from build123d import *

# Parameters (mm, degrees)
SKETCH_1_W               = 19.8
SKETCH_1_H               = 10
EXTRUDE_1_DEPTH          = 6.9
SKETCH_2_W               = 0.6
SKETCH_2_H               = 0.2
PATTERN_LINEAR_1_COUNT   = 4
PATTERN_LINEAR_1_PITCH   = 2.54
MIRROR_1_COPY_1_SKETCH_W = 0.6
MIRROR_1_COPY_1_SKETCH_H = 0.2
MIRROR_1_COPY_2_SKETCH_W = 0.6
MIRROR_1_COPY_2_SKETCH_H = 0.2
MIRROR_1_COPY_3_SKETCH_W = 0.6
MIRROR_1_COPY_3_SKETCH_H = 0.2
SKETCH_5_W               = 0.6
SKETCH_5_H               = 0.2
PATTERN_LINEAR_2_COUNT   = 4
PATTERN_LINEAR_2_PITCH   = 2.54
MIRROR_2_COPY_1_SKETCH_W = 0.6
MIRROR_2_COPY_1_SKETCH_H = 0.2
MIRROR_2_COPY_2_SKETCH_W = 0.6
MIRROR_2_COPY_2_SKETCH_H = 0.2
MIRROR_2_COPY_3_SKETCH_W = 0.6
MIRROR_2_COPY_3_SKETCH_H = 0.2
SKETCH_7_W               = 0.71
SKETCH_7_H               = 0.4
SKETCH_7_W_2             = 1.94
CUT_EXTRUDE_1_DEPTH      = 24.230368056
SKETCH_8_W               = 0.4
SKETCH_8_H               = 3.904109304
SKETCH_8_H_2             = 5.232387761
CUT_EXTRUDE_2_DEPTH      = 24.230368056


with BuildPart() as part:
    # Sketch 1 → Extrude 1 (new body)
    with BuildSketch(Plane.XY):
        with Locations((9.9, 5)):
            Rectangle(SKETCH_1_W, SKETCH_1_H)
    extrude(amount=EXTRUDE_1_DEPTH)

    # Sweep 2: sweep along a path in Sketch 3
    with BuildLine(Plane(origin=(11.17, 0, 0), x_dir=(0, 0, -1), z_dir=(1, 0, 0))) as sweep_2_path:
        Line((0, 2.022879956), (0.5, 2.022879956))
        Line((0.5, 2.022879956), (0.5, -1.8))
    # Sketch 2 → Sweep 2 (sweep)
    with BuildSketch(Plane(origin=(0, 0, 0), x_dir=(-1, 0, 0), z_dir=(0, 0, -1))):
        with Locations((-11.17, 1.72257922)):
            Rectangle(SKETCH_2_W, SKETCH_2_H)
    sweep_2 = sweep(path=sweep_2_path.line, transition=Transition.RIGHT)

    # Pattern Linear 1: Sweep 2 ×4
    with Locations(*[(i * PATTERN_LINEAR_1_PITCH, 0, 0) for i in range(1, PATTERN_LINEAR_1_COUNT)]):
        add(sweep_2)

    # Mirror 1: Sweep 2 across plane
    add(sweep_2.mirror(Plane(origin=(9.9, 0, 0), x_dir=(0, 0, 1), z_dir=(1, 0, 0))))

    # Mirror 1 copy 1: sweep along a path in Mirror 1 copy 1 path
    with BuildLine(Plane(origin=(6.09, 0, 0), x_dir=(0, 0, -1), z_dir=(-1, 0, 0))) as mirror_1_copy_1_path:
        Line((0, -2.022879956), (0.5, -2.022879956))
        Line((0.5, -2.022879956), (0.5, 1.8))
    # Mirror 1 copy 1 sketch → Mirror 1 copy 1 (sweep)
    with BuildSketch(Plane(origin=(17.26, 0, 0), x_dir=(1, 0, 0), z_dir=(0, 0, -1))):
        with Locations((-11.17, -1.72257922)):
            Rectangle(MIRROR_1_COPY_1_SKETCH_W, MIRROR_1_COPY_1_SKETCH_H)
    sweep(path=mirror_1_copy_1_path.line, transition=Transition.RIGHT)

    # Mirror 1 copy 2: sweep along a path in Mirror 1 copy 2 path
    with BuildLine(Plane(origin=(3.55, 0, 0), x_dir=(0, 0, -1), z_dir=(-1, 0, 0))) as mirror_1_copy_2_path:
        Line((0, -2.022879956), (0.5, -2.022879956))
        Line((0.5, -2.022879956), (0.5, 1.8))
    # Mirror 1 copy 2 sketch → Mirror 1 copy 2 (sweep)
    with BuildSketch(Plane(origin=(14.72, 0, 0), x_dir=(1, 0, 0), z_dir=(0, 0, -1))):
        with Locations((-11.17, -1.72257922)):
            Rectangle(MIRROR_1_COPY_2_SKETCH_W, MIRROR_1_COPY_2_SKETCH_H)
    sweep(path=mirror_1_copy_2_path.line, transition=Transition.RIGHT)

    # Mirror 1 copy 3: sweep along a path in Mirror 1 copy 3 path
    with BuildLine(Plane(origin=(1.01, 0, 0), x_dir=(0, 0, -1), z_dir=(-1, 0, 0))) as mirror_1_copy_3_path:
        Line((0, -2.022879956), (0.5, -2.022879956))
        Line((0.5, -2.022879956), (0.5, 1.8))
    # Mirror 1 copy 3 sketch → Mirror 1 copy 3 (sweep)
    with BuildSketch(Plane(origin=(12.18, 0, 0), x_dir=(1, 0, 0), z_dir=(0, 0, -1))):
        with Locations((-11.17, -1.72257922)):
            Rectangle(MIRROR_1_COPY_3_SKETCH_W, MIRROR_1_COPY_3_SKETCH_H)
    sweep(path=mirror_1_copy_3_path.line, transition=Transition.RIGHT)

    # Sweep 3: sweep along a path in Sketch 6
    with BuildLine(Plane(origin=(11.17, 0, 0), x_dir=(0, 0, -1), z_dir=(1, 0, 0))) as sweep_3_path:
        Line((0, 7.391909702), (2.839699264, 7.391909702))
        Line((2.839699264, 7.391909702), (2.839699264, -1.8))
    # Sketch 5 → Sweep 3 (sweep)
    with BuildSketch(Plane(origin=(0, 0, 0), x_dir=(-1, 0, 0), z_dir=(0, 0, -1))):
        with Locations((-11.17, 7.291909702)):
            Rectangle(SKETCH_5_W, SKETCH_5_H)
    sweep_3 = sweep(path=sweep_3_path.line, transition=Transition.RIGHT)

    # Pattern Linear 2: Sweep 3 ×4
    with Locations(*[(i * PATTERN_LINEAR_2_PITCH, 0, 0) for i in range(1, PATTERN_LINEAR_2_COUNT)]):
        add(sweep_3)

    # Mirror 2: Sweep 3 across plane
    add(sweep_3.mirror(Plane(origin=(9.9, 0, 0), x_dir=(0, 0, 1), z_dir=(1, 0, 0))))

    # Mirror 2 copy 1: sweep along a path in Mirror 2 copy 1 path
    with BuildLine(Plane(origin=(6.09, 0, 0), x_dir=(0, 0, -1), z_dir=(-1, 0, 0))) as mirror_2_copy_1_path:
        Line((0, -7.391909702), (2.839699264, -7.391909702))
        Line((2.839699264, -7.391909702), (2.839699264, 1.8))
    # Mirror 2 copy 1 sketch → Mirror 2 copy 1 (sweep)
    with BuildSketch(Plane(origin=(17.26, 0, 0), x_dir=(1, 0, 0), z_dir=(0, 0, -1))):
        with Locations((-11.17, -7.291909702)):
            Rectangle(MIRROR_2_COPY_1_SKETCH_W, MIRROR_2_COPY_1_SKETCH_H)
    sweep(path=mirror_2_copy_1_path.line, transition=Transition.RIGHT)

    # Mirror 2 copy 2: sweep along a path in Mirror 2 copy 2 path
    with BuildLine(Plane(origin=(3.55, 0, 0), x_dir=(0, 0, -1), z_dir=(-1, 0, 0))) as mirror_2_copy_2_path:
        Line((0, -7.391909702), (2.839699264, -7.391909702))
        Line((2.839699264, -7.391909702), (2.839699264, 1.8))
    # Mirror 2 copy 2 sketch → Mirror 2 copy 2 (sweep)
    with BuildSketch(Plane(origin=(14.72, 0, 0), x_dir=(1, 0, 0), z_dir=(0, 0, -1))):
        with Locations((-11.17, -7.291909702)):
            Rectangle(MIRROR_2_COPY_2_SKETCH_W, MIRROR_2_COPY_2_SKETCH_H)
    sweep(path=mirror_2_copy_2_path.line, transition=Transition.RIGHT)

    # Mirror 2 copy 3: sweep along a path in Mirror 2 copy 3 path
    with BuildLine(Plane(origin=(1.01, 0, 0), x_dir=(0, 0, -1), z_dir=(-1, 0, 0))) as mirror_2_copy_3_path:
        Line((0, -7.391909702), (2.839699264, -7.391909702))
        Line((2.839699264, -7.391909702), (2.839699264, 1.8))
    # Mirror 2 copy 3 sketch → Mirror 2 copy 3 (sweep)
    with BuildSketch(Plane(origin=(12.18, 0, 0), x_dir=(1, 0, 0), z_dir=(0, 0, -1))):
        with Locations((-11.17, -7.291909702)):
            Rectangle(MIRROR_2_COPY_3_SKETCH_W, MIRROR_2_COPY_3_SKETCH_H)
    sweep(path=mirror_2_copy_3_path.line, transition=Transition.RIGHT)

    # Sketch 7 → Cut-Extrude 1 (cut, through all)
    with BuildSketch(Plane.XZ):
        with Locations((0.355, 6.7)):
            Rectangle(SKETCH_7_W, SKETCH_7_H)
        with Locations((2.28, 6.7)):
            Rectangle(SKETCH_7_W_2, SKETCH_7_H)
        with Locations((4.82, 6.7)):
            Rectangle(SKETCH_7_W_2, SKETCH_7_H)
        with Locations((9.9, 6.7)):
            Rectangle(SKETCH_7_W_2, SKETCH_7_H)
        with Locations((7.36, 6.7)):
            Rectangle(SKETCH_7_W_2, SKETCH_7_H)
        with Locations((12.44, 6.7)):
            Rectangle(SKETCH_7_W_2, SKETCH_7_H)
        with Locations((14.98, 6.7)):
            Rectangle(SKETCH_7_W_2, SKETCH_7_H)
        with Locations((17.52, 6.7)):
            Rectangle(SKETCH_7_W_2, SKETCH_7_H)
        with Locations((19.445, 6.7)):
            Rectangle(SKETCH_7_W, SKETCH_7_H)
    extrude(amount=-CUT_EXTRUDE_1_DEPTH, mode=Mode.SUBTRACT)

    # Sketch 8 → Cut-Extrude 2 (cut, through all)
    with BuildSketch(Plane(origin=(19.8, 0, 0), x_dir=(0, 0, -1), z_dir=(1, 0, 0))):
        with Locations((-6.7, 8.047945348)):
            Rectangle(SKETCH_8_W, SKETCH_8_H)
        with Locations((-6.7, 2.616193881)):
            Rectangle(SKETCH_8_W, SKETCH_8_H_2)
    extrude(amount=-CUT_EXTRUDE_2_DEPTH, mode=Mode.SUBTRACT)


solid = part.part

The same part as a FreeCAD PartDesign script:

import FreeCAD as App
import Part
import Sketcher
Q = App.Units.Quantity

doc = App.newDocument("Part")
body = doc.addObject("PartDesign::Body", "Body")

# Sketch on XY plane
sketch1 = doc.addObject("Sketcher::SketchObject", "Sketch")
body.addObject(sketch1)
sketch1.AttachmentSupport = (doc.XY_Plane, [""])
sketch1.MapMode = "FlatFace"
sketch1.addGeometry([
    Part.LineSegment(App.Vector(0, 10, 0), App.Vector(0, 0, 0)),
    Part.LineSegment(App.Vector(0, 0, 0), App.Vector(20, 0, 0)),
    Part.LineSegment(App.Vector(20, 0, 0), App.Vector(20, 10, 0)),
    Part.LineSegment(App.Vector(20, 10, 0), App.Vector(0, 10, 0)),
], False)
sketch1.addConstraint([
    Sketcher.Constraint("Coincident", 0, 2, 1, 1),
    Sketcher.Constraint("Coincident", 1, 2, 2, 1),
    Sketcher.Constraint("Coincident", 2, 2, 3, 1),
    Sketcher.Constraint("Coincident", 3, 2, 0, 1),
    Sketcher.Constraint("Vertical", 0),
    Sketcher.Constraint("Horizontal", 1),
    Sketcher.Constraint("Vertical", 2),
    Sketcher.Constraint("Horizontal", 3),
    Sketcher.Constraint("Coincident", 0, 2, -1, 1),
    Sketcher.Constraint("DistanceY", 0, 2, 0, 1, Q("10 mm")),
    Sketcher.Constraint("DistanceX", 1, 1, 1, 2, Q("19.8 mm")),
])
pad1 = doc.addObject("PartDesign::Pad", "Pad")
body.addObject(pad1)
pad1.Profile = sketch1
pad1.Length = 6.9

# Sketch on XY plane
sketch2 = doc.addObject("Sketcher::SketchObject", "Sketch001")
body.addObject(sketch2)
sketch2.AttachmentSupport = (doc.XY_Plane, [""])
sketch2.MapMode = "FlatFace"
sketch2.addGeometry([
    Part.LineSegment(App.Vector(11.47, 1.82, 0), App.Vector(11.47, 1.62, 0)),
    Part.LineSegment(App.Vector(11.47, 1.62, 0), App.Vector(10.87, 1.62, 0)),
    Part.LineSegment(App.Vector(10.87, 1.62, 0), App.Vector(10.87, 1.82, 0)),
    Part.LineSegment(App.Vector(10.87, 1.82, 0), App.Vector(11.47, 1.82, 0)),
], False)
sketch2.addConstraint([
    Sketcher.Constraint("Coincident", 0, 2, 1, 1),
    Sketcher.Constraint("Coincident", 1, 2, 2, 1),
    Sketcher.Constraint("Coincident", 2, 2, 3, 1),
    Sketcher.Constraint("Coincident", 3, 2, 0, 1),
    Sketcher.Constraint("Vertical", 0),
    Sketcher.Constraint("Horizontal", 1),
    Sketcher.Constraint("Vertical", 2),
    Sketcher.Constraint("Horizontal", 3),
    Sketcher.Constraint("DistanceX", 1, 2, 1, 1, Q("0.6 mm")),
    Sketcher.Constraint("DistanceY", 0, 2, 0, 1, Q("0.2 mm")),
    Sketcher.Constraint("DistanceX", -1, 1, 0, 2, Q("11.47 mm")),
    Sketcher.Constraint("DistanceY", -1, 1, 0, 2, Q("1.622579 mm")),
])

# Sketch on YZ plane
sketch3 = doc.addObject("Sketcher::SketchObject", "Sketch002")
body.addObject(sketch3)
sketch3.AttachmentSupport = (doc.YZ_Plane, [""])
sketch3.MapMode = "FlatFace"
sketch3.AttachmentOffset = App.Placement(App.Vector(0, 0, 11.17), App.Rotation())
sketch3.addGeometry([
    Part.LineSegment(App.Vector(2, 0, 0), App.Vector(2, -0.5, 0)),
    Part.LineSegment(App.Vector(2, -0.5, 0), App.Vector(-1.8, -0.5, 0)),
], False)
sketch3.addConstraint([
    Sketcher.Constraint("Coincident", 0, 2, 1, 1),
    Sketcher.Constraint("Vertical", 0),
    Sketcher.Constraint("Horizontal", 1),
    Sketcher.Constraint("PointOnObject", 0, 1, -1),
    Sketcher.Constraint("DistanceY", 0, 2, 0, 1, Q("0.5 mm")),
    Sketcher.Constraint("DistanceX", 1, 2, -1, 1, Q("1.8 mm")),
    Sketcher.Constraint("DistanceX", 1, 2, 1, 1, Q("3.82288 mm")),
])
doc.recompute()

additivepipe = doc.addObject("PartDesign::AdditivePipe", "AdditivePipe")
body.addObject(additivepipe)
additivepipe.Profile = sketch2
additivepipe.Spine = (sketch3, ["Edge1", "Edge2"])
additivepipe.Transition = "Right corner"
doc.recompute()

linearpattern = doc.addObject("PartDesign::LinearPattern", "LinearPattern")
body.addObject(linearpattern)
linearpattern.Originals = [additivepipe]
linearpattern.Direction = (doc.X_Axis, [""])
linearpattern.Mode = "offset"
linearpattern.Offset = 2.54
linearpattern.Occurrences = 4
body.Tip = linearpattern
doc.recompute()

datumplane = doc.addObject("PartDesign::Plane", "DatumPlane")
body.addObject(datumplane)
datumplane.AttachmentSupport = (doc.YZ_Plane, [""])
datumplane.MapMode = "FlatFace"
datumplane.AttachmentOffset = App.Placement(App.Vector(0, 0, 9.9), App.Rotation())
mirrored = doc.addObject("PartDesign::Mirrored", "Mirrored")
body.addObject(mirrored)
mirrored.Originals = [additivepipe]
mirrored.MirrorPlane = (datumplane, [""])
body.Tip = mirrored

# Sketch on XY plane
sketch4 = doc.addObject("Sketcher::SketchObject", "Sketch003")
body.addObject(sketch4)
sketch4.AttachmentSupport = (doc.XY_Plane, [""])
sketch4.MapMode = "FlatFace"
sketch4.addGeometry([
    Part.LineSegment(App.Vector(5.79, 1.62, 0), App.Vector(5.79, 1.82, 0)),
    Part.LineSegment(App.Vector(5.79, 1.82, 0), App.Vector(6.39, 1.82, 0)),
    Part.LineSegment(App.Vector(6.39, 1.82, 0), App.Vector(6.39, 1.62, 0)),
    Part.LineSegment(App.Vector(6.39, 1.62, 0), App.Vector(5.79, 1.62, 0)),
], False)
sketch4.addConstraint([
    Sketcher.Constraint("Coincident", 0, 2, 1, 1),
    Sketcher.Constraint("Coincident", 1, 2, 2, 1),
    Sketcher.Constraint("Coincident", 2, 2, 3, 1),
    Sketcher.Constraint("Coincident", 3, 2, 0, 1),
    Sketcher.Constraint("Vertical", 0),
    Sketcher.Constraint("Horizontal", 1),
    Sketcher.Constraint("Vertical", 2),
    Sketcher.Constraint("Horizontal", 3),
    Sketcher.Constraint("DistanceX", 1, 1, 1, 2, Q("0.6 mm")),
    Sketcher.Constraint("DistanceY", 0, 1, 0, 2, Q("0.2 mm")),
    Sketcher.Constraint("DistanceX", -1, 1, 0, 2, Q("5.79 mm")),
    Sketcher.Constraint("DistanceY", -1, 1, 0, 2, Q("1.822579 mm")),
])

# Sketch on YZ plane
sketch5 = doc.addObject("Sketcher::SketchObject", "Sketch004")
body.addObject(sketch5)
sketch5.AttachmentSupport = (doc.YZ_Plane, [""])
sketch5.MapMode = "FlatFace"
sketch5.AttachmentOffset = App.Placement(App.Vector(0, 0, 6.09), App.Rotation())
sketch5.addGeometry([
    Part.LineSegment(App.Vector(2, 0, 0), App.Vector(2, -0.5, 0)),
    Part.LineSegment(App.Vector(2, -0.5, 0), App.Vector(-1.8, -0.5, 0)),
], False)
sketch5.addConstraint([
    Sketcher.Constraint("Coincident", 0, 2, 1, 1),
    Sketcher.Constraint("Vertical", 0),
    Sketcher.Constraint("Horizontal", 1),
    Sketcher.Constraint("PointOnObject", 0, 1, -1),
    Sketcher.Constraint("DistanceY", 0, 2, 0, 1, Q("0.5 mm")),
    Sketcher.Constraint("DistanceX", 1, 2, -1, 1, Q("1.8 mm")),
    Sketcher.Constraint("DistanceX", 1, 2, 1, 1, Q("3.82288 mm")),
])
doc.recompute()

additivepipe2 = doc.addObject("PartDesign::AdditivePipe", "AdditivePipe001")
body.addObject(additivepipe2)
additivepipe2.Profile = sketch4
additivepipe2.Spine = (sketch5, ["Edge1", "Edge2"])
additivepipe2.Transition = "Right corner"

# Sketch on XY plane
sketch6 = doc.addObject("Sketcher::SketchObject", "Sketch005")
body.addObject(sketch6)
sketch6.AttachmentSupport = (doc.XY_Plane, [""])
sketch6.MapMode = "FlatFace"
sketch6.addGeometry([
    Part.LineSegment(App.Vector(3.25, 1.62, 0), App.Vector(3.25, 1.82, 0)),
    Part.LineSegment(App.Vector(3.25, 1.82, 0), App.Vector(3.85, 1.82, 0)),
    Part.LineSegment(App.Vector(3.85, 1.82, 0), App.Vector(3.85, 1.62, 0)),
    Part.LineSegment(App.Vector(3.85, 1.62, 0), App.Vector(3.25, 1.62, 0)),
], False)
sketch6.addConstraint([
    Sketcher.Constraint("Coincident", 0, 2, 1, 1),
    Sketcher.Constraint("Coincident", 1, 2, 2, 1),
    Sketcher.Constraint("Coincident", 2, 2, 3, 1),
    Sketcher.Constraint("Coincident", 3, 2, 0, 1),
    Sketcher.Constraint("Vertical", 0),
    Sketcher.Constraint("Horizontal", 1),
    Sketcher.Constraint("Vertical", 2),
    Sketcher.Constraint("Horizontal", 3),
    Sketcher.Constraint("DistanceX", 1, 1, 1, 2, Q("0.6 mm")),
    Sketcher.Constraint("DistanceY", 0, 1, 0, 2, Q("0.2 mm")),
    Sketcher.Constraint("DistanceX", -1, 1, 0, 2, Q("3.25 mm")),
    Sketcher.Constraint("DistanceY", -1, 1, 0, 2, Q("1.822579 mm")),
])

# Sketch on YZ plane
sketch7 = doc.addObject("Sketcher::SketchObject", "Sketch006")
body.addObject(sketch7)
sketch7.AttachmentSupport = (doc.YZ_Plane, [""])
sketch7.MapMode = "FlatFace"
sketch7.AttachmentOffset = App.Placement(App.Vector(0, 0, 3.55), App.Rotation())
sketch7.addGeometry([
    Part.LineSegment(App.Vector(2, 0, 0), App.Vector(2, -0.5, 0)),
    Part.LineSegment(App.Vector(2, -0.5, 0), App.Vector(-1.8, -0.5, 0)),
], False)
sketch7.addConstraint([
    Sketcher.Constraint("Coincident", 0, 2, 1, 1),
    Sketcher.Constraint("Vertical", 0),
    Sketcher.Constraint("Horizontal", 1),
    Sketcher.Constraint("PointOnObject", 0, 1, -1),
    Sketcher.Constraint("DistanceY", 0, 2, 0, 1, Q("0.5 mm")),
    Sketcher.Constraint("DistanceX", 1, 2, -1, 1, Q("1.8 mm")),
    Sketcher.Constraint("DistanceX", 1, 2, 1, 1, Q("3.82288 mm")),
])
doc.recompute()

additivepipe3 = doc.addObject("PartDesign::AdditivePipe", "AdditivePipe002")
body.addObject(additivepipe3)
additivepipe3.Profile = sketch6
additivepipe3.Spine = (sketch7, ["Edge1", "Edge2"])
additivepipe3.Transition = "Right corner"

# Sketch on XY plane
sketch8 = doc.addObject("Sketcher::SketchObject", "Sketch007")
body.addObject(sketch8)
sketch8.AttachmentSupport = (doc.XY_Plane, [""])
sketch8.MapMode = "FlatFace"
sketch8.addGeometry([
    Part.LineSegment(App.Vector(0.71, 1.62, 0), App.Vector(0.71, 1.82, 0)),
    Part.LineSegment(App.Vector(0.71, 1.82, 0), App.Vector(1.31, 1.82, 0)),
    Part.LineSegment(App.Vector(1.31, 1.82, 0), App.Vector(1.31, 1.62, 0)),
    Part.LineSegment(App.Vector(1.31, 1.62, 0), App.Vector(0.71, 1.62, 0)),
], False)
sketch8.addConstraint([
    Sketcher.Constraint("Coincident", 0, 2, 1, 1),
    Sketcher.Constraint("Coincident", 1, 2, 2, 1),
    Sketcher.Constraint("Coincident", 2, 2, 3, 1),
    Sketcher.Constraint("Coincident", 3, 2, 0, 1),
    Sketcher.Constraint("Vertical", 0),
    Sketcher.Constraint("Horizontal", 1),
    Sketcher.Constraint("Vertical", 2),
    Sketcher.Constraint("Horizontal", 3),
    Sketcher.Constraint("DistanceX", 1, 1, 1, 2, Q("0.6 mm")),
    Sketcher.Constraint("DistanceY", 0, 1, 0, 2, Q("0.2 mm")),
    Sketcher.Constraint("DistanceX", -1, 1, 0, 2, Q("0.71 mm")),
    Sketcher.Constraint("DistanceY", -1, 1, 0, 2, Q("1.822579 mm")),
])

# Sketch on YZ plane
sketch9 = doc.addObject("Sketcher::SketchObject", "Sketch008")
body.addObject(sketch9)
sketch9.AttachmentSupport = (doc.YZ_Plane, [""])
sketch9.MapMode = "FlatFace"
sketch9.AttachmentOffset = App.Placement(App.Vector(0, 0, 1.01), App.Rotation())
sketch9.addGeometry([
    Part.LineSegment(App.Vector(2, 0, 0), App.Vector(2, -0.5, 0)),
    Part.LineSegment(App.Vector(2, -0.5, 0), App.Vector(-1.8, -0.5, 0)),
], False)
sketch9.addConstraint([
    Sketcher.Constraint("Coincident", 0, 2, 1, 1),
    Sketcher.Constraint("Vertical", 0),
    Sketcher.Constraint("Horizontal", 1),
    Sketcher.Constraint("PointOnObject", 0, 1, -1),
    Sketcher.Constraint("DistanceY", 0, 2, 0, 1, Q("0.5 mm")),
    Sketcher.Constraint("DistanceX", 1, 2, -1, 1, Q("1.8 mm")),
    Sketcher.Constraint("DistanceX", 1, 2, 1, 1, Q("3.82288 mm")),
])
doc.recompute()

additivepipe4 = doc.addObject("PartDesign::AdditivePipe", "AdditivePipe003")
body.addObject(additivepipe4)
additivepipe4.Profile = sketch8
additivepipe4.Spine = (sketch9, ["Edge1", "Edge2"])
additivepipe4.Transition = "Right corner"

# Sketch on XY plane
sketch10 = doc.addObject("Sketcher::SketchObject", "Sketch009")
body.addObject(sketch10)
sketch10.AttachmentSupport = (doc.XY_Plane, [""])
sketch10.MapMode = "FlatFace"
sketch10.addGeometry([
    Part.LineSegment(App.Vector(11.47, 7.39, 0), App.Vector(11.47, 7.19, 0)),
    Part.LineSegment(App.Vector(11.47, 7.19, 0), App.Vector(10.87, 7.19, 0)),
    Part.LineSegment(App.Vector(10.87, 7.19, 0), App.Vector(10.87, 7.39, 0)),
    Part.LineSegment(App.Vector(10.87, 7.39, 0), App.Vector(11.47, 7.39, 0)),
], False)
sketch10.addConstraint([
    Sketcher.Constraint("Coincident", 0, 2, 1, 1),
    Sketcher.Constraint("Coincident", 1, 2, 2, 1),
    Sketcher.Constraint("Coincident", 2, 2, 3, 1),
    Sketcher.Constraint("Coincident", 3, 2, 0, 1),
    Sketcher.Constraint("Vertical", 0),
    Sketcher.Constraint("Horizontal", 1),
    Sketcher.Constraint("Vertical", 2),
    Sketcher.Constraint("Horizontal", 3),
    Sketcher.Constraint("DistanceX", 1, 2, 1, 1, Q("0.6 mm")),
    Sketcher.Constraint("DistanceY", 0, 2, 0, 1, Q("0.2 mm")),
    Sketcher.Constraint("DistanceX", -1, 1, 0, 2, Q("11.47 mm")),
    Sketcher.Constraint("DistanceY", -1, 1, 0, 2, Q("7.19191 mm")),
])

# Sketch on YZ plane
sketch11 = doc.addObject("Sketcher::SketchObject", "Sketch010")
body.addObject(sketch11)
sketch11.AttachmentSupport = (doc.YZ_Plane, [""])
sketch11.MapMode = "FlatFace"
sketch11.AttachmentOffset = App.Placement(App.Vector(0, 0, 11.17), App.Rotation())
sketch11.addGeometry([
    Part.LineSegment(App.Vector(7.4, 0, 0), App.Vector(7.4, -2.8, 0)),
    Part.LineSegment(App.Vector(7.4, -2.8, 0), App.Vector(-1.8, -2.8, 0)),
], False)
sketch11.addConstraint([
    Sketcher.Constraint("Coincident", 0, 2, 1, 1),
    Sketcher.Constraint("Vertical", 0),
    Sketcher.Constraint("Horizontal", 1),
    Sketcher.Constraint("PointOnObject", 0, 1, -1),
    Sketcher.Constraint("DistanceX", 1, 2, -1, 1, Q("1.8 mm")),
    Sketcher.Constraint("DistanceY", 0, 2, 0, 1, Q("2.839699 mm")),
    Sketcher.Constraint("DistanceX", 1, 2, 1, 1, Q("9.19191 mm")),
])
doc.recompute()

additivepipe5 = doc.addObject("PartDesign::AdditivePipe", "AdditivePipe004")
body.addObject(additivepipe5)
additivepipe5.Profile = sketch10
additivepipe5.Spine = (sketch11, ["Edge1", "Edge2"])
additivepipe5.Transition = "Right corner"
doc.recompute()

linearpattern2 = doc.addObject("PartDesign::LinearPattern", "LinearPattern001")
body.addObject(linearpattern2)
linearpattern2.Originals = [additivepipe5]
linearpattern2.Direction = (doc.X_Axis, [""])
linearpattern2.Mode = "offset"
linearpattern2.Offset = 2.54
linearpattern2.Occurrences = 4
body.Tip = linearpattern2
doc.recompute()

datumplane2 = doc.addObject("PartDesign::Plane", "DatumPlane001")
body.addObject(datumplane2)
datumplane2.AttachmentSupport = (doc.YZ_Plane, [""])
datumplane2.MapMode = "FlatFace"
datumplane2.AttachmentOffset = App.Placement(App.Vector(0, 0, 9.9), App.Rotation())
mirrored2 = doc.addObject("PartDesign::Mirrored", "Mirrored001")
body.addObject(mirrored2)
mirrored2.Originals = [additivepipe5]
mirrored2.MirrorPlane = (datumplane2, [""])
body.Tip = mirrored2

# Sketch on XY plane
sketch12 = doc.addObject("Sketcher::SketchObject", "Sketch011")
body.addObject(sketch12)
sketch12.AttachmentSupport = (doc.XY_Plane, [""])
sketch12.MapMode = "FlatFace"
sketch12.addGeometry([
    Part.LineSegment(App.Vector(5.79, 7.19, 0), App.Vector(5.79, 7.39, 0)),
    Part.LineSegment(App.Vector(5.79, 7.39, 0), App.Vector(6.39, 7.39, 0)),
    Part.LineSegment(App.Vector(6.39, 7.39, 0), App.Vector(6.39, 7.19, 0)),
    Part.LineSegment(App.Vector(6.39, 7.19, 0), App.Vector(5.79, 7.19, 0)),
], False)
sketch12.addConstraint([
    Sketcher.Constraint("Coincident", 0, 2, 1, 1),
    Sketcher.Constraint("Coincident", 1, 2, 2, 1),
    Sketcher.Constraint("Coincident", 2, 2, 3, 1),
    Sketcher.Constraint("Coincident", 3, 2, 0, 1),
    Sketcher.Constraint("Vertical", 0),
    Sketcher.Constraint("Horizontal", 1),
    Sketcher.Constraint("Vertical", 2),
    Sketcher.Constraint("Horizontal", 3),
    Sketcher.Constraint("DistanceX", 1, 1, 1, 2, Q("0.6 mm")),
    Sketcher.Constraint("DistanceY", 0, 1, 0, 2, Q("0.2 mm")),
    Sketcher.Constraint("DistanceX", -1, 1, 0, 2, Q("5.79 mm")),
    Sketcher.Constraint("DistanceY", -1, 1, 0, 2, Q("7.39191 mm")),
])

# Sketch on YZ plane
sketch13 = doc.addObject("Sketcher::SketchObject", "Sketch012")
body.addObject(sketch13)
sketch13.AttachmentSupport = (doc.YZ_Plane, [""])
sketch13.MapMode = "FlatFace"
sketch13.AttachmentOffset = App.Placement(App.Vector(0, 0, 6.09), App.Rotation())
sketch13.addGeometry([
    Part.LineSegment(App.Vector(7.4, 0, 0), App.Vector(7.4, -2.8, 0)),
    Part.LineSegment(App.Vector(7.4, -2.8, 0), App.Vector(-1.8, -2.8, 0)),
], False)
sketch13.addConstraint([
    Sketcher.Constraint("Coincident", 0, 2, 1, 1),
    Sketcher.Constraint("Vertical", 0),
    Sketcher.Constraint("Horizontal", 1),
    Sketcher.Constraint("PointOnObject", 0, 1, -1),
    Sketcher.Constraint("DistanceX", 1, 2, -1, 1, Q("1.8 mm")),
    Sketcher.Constraint("DistanceY", 0, 2, 0, 1, Q("2.839699 mm")),
    Sketcher.Constraint("DistanceX", 1, 2, 1, 1, Q("9.19191 mm")),
])
doc.recompute()

additivepipe6 = doc.addObject("PartDesign::AdditivePipe", "AdditivePipe005")
body.addObject(additivepipe6)
additivepipe6.Profile = sketch12
additivepipe6.Spine = (sketch13, ["Edge1", "Edge2"])
additivepipe6.Transition = "Right corner"

# Sketch on XY plane
sketch14 = doc.addObject("Sketcher::SketchObject", "Sketch013")
body.addObject(sketch14)
sketch14.AttachmentSupport = (doc.XY_Plane, [""])
sketch14.MapMode = "FlatFace"
sketch14.addGeometry([
    Part.LineSegment(App.Vector(3.25, 7.19, 0), App.Vector(3.25, 7.39, 0)),
    Part.LineSegment(App.Vector(3.25, 7.39, 0), App.Vector(3.85, 7.39, 0)),
    Part.LineSegment(App.Vector(3.85, 7.39, 0), App.Vector(3.85, 7.19, 0)),
    Part.LineSegment(App.Vector(3.85, 7.19, 0), App.Vector(3.25, 7.19, 0)),
], False)
sketch14.addConstraint([
    Sketcher.Constraint("Coincident", 0, 2, 1, 1),
    Sketcher.Constraint("Coincident", 1, 2, 2, 1),
    Sketcher.Constraint("Coincident", 2, 2, 3, 1),
    Sketcher.Constraint("Coincident", 3, 2, 0, 1),
    Sketcher.Constraint("Vertical", 0),
    Sketcher.Constraint("Horizontal", 1),
    Sketcher.Constraint("Vertical", 2),
    Sketcher.Constraint("Horizontal", 3),
    Sketcher.Constraint("DistanceX", 1, 1, 1, 2, Q("0.6 mm")),
    Sketcher.Constraint("DistanceY", 0, 1, 0, 2, Q("0.2 mm")),
    Sketcher.Constraint("DistanceX", -1, 1, 0, 2, Q("3.25 mm")),
    Sketcher.Constraint("DistanceY", -1, 1, 0, 2, Q("7.39191 mm")),
])

# Sketch on YZ plane
sketch15 = doc.addObject("Sketcher::SketchObject", "Sketch014")
body.addObject(sketch15)
sketch15.AttachmentSupport = (doc.YZ_Plane, [""])
sketch15.MapMode = "FlatFace"
sketch15.AttachmentOffset = App.Placement(App.Vector(0, 0, 3.55), App.Rotation())
sketch15.addGeometry([
    Part.LineSegment(App.Vector(7.4, 0, 0), App.Vector(7.4, -2.8, 0)),
    Part.LineSegment(App.Vector(7.4, -2.8, 0), App.Vector(-1.8, -2.8, 0)),
], False)
sketch15.addConstraint([
    Sketcher.Constraint("Coincident", 0, 2, 1, 1),
    Sketcher.Constraint("Vertical", 0),
    Sketcher.Constraint("Horizontal", 1),
    Sketcher.Constraint("PointOnObject", 0, 1, -1),
    Sketcher.Constraint("DistanceX", 1, 2, -1, 1, Q("1.8 mm")),
    Sketcher.Constraint("DistanceY", 0, 2, 0, 1, Q("2.839699 mm")),
    Sketcher.Constraint("DistanceX", 1, 2, 1, 1, Q("9.19191 mm")),
])
doc.recompute()

additivepipe7 = doc.addObject("PartDesign::AdditivePipe", "AdditivePipe006")
body.addObject(additivepipe7)
additivepipe7.Profile = sketch14
additivepipe7.Spine = (sketch15, ["Edge1", "Edge2"])
additivepipe7.Transition = "Right corner"

# Sketch on XY plane
sketch16 = doc.addObject("Sketcher::SketchObject", "Sketch015")
body.addObject(sketch16)
sketch16.AttachmentSupport = (doc.XY_Plane, [""])
sketch16.MapMode = "FlatFace"
sketch16.addGeometry([
    Part.LineSegment(App.Vector(0.71, 7.19, 0), App.Vector(0.71, 7.39, 0)),
    Part.LineSegment(App.Vector(0.71, 7.39, 0), App.Vector(1.31, 7.39, 0)),
    Part.LineSegment(App.Vector(1.31, 7.39, 0), App.Vector(1.31, 7.19, 0)),
    Part.LineSegment(App.Vector(1.31, 7.19, 0), App.Vector(0.71, 7.19, 0)),
], False)
sketch16.addConstraint([
    Sketcher.Constraint("Coincident", 0, 2, 1, 1),
    Sketcher.Constraint("Coincident", 1, 2, 2, 1),
    Sketcher.Constraint("Coincident", 2, 2, 3, 1),
    Sketcher.Constraint("Coincident", 3, 2, 0, 1),
    Sketcher.Constraint("Vertical", 0),
    Sketcher.Constraint("Horizontal", 1),
    Sketcher.Constraint("Vertical", 2),
    Sketcher.Constraint("Horizontal", 3),
    Sketcher.Constraint("DistanceX", 1, 1, 1, 2, Q("0.6 mm")),
    Sketcher.Constraint("DistanceY", 0, 1, 0, 2, Q("0.2 mm")),
    Sketcher.Constraint("DistanceX", -1, 1, 0, 2, Q("0.71 mm")),
    Sketcher.Constraint("DistanceY", -1, 1, 0, 2, Q("7.39191 mm")),
])

# Sketch on YZ plane
sketch17 = doc.addObject("Sketcher::SketchObject", "Sketch016")
body.addObject(sketch17)
sketch17.AttachmentSupport = (doc.YZ_Plane, [""])
sketch17.MapMode = "FlatFace"
sketch17.AttachmentOffset = App.Placement(App.Vector(0, 0, 1.01), App.Rotation())
sketch17.addGeometry([
    Part.LineSegment(App.Vector(7.4, 0, 0), App.Vector(7.4, -2.8, 0)),
    Part.LineSegment(App.Vector(7.4, -2.8, 0), App.Vector(-1.8, -2.8, 0)),
], False)
sketch17.addConstraint([
    Sketcher.Constraint("Coincident", 0, 2, 1, 1),
    Sketcher.Constraint("Vertical", 0),
    Sketcher.Constraint("Horizontal", 1),
    Sketcher.Constraint("PointOnObject", 0, 1, -1),
    Sketcher.Constraint("DistanceX", 1, 2, -1, 1, Q("1.8 mm")),
    Sketcher.Constraint("DistanceY", 0, 2, 0, 1, Q("2.839699 mm")),
    Sketcher.Constraint("DistanceX", 1, 2, 1, 1, Q("9.19191 mm")),
])
doc.recompute()

additivepipe8 = doc.addObject("PartDesign::AdditivePipe", "AdditivePipe007")
body.addObject(additivepipe8)
additivepipe8.Profile = sketch16
additivepipe8.Spine = (sketch17, ["Edge1", "Edge2"])
additivepipe8.Transition = "Right corner"

# Sketch on XZ plane
sketch18 = doc.addObject("Sketcher::SketchObject", "Sketch017")
body.addObject(sketch18)
sketch18.AttachmentSupport = (doc.XZ_Plane, [""])
sketch18.MapMode = "FlatFace"
sketch18.addGeometry([
    Part.LineSegment(App.Vector(0, 6.9, 0), App.Vector(0, 6.5, 0)),  # 0
    Part.LineSegment(App.Vector(0, 6.5, 0), App.Vector(0.71, 6.5, 0)),  # 1
    Part.LineSegment(App.Vector(0.71, 6.5, 0), App.Vector(0.71, 6.9, 0)),  # 2
    Part.LineSegment(App.Vector(0.71, 6.9, 0), App.Vector(0, 6.9, 0)),  # 3
    Part.LineSegment(App.Vector(1.31, 6.9, 0), App.Vector(1.31, 6.5, 0)),  # 4
    Part.LineSegment(App.Vector(1.31, 6.5, 0), App.Vector(3.25, 6.5, 0)),  # 5
    Part.LineSegment(App.Vector(3.25, 6.5, 0), App.Vector(3.25, 6.9, 0)),  # 6
    Part.LineSegment(App.Vector(3.25, 6.9, 0), App.Vector(1.31, 6.9, 0)),  # 7
    Part.LineSegment(App.Vector(3.85, 6.9, 0), App.Vector(3.85, 6.5, 0)),  # 8
    Part.LineSegment(App.Vector(3.85, 6.5, 0), App.Vector(5.79, 6.5, 0)),  # 9
    Part.LineSegment(App.Vector(5.79, 6.5, 0), App.Vector(5.79, 6.9, 0)),  # 10
    Part.LineSegment(App.Vector(5.79, 6.9, 0), App.Vector(3.85, 6.9, 0)),  # 11
    Part.LineSegment(App.Vector(8.93, 6.9, 0), App.Vector(8.93, 6.5, 0)),  # 12
    Part.LineSegment(App.Vector(8.93, 6.5, 0), App.Vector(10.87, 6.5, 0)),  # 13
    Part.LineSegment(App.Vector(10.87, 6.5, 0), App.Vector(10.87, 6.9, 0)),  # 14
    Part.LineSegment(App.Vector(10.87, 6.9, 0), App.Vector(8.93, 6.9, 0)),  # 15
    Part.LineSegment(App.Vector(6.39, 6.9, 0), App.Vector(6.39, 6.5, 0)),  # 16
    Part.LineSegment(App.Vector(6.39, 6.5, 0), App.Vector(8.33, 6.5, 0)),  # 17
    Part.LineSegment(App.Vector(8.33, 6.5, 0), App.Vector(8.33, 6.9, 0)),  # 18
    Part.LineSegment(App.Vector(8.33, 6.9, 0), App.Vector(6.39, 6.9, 0)),  # 19
    Part.LineSegment(App.Vector(11.47, 6.9, 0), App.Vector(11.47, 6.5, 0)),  # 20
    Part.LineSegment(App.Vector(11.47, 6.5, 0), App.Vector(13.41, 6.5, 0)),  # 21
    Part.LineSegment(App.Vector(13.41, 6.5, 0), App.Vector(13.41, 6.9, 0)),  # 22
    Part.LineSegment(App.Vector(13.41, 6.9, 0), App.Vector(11.47, 6.9, 0)),  # 23
    Part.LineSegment(App.Vector(14.01, 6.9, 0), App.Vector(14.01, 6.5, 0)),  # 24
    Part.LineSegment(App.Vector(14.01, 6.5, 0), App.Vector(15.95, 6.5, 0)),  # 25
    Part.LineSegment(App.Vector(15.95, 6.5, 0), App.Vector(15.95, 6.9, 0)),  # 26
    Part.LineSegment(App.Vector(15.95, 6.9, 0), App.Vector(14.01, 6.9, 0)),  # 27
    Part.LineSegment(App.Vector(16.55, 6.9, 0), App.Vector(16.55, 6.5, 0)),  # 28
    Part.LineSegment(App.Vector(16.55, 6.5, 0), App.Vector(18.49, 6.5, 0)),  # 29
    Part.LineSegment(App.Vector(18.49, 6.5, 0), App.Vector(18.49, 6.9, 0)),  # 30
    Part.LineSegment(App.Vector(18.49, 6.9, 0), App.Vector(16.55, 6.9, 0)),  # 31
    Part.LineSegment(App.Vector(19.09, 6.9, 0), App.Vector(19.09, 6.5, 0)),  # 32
    Part.LineSegment(App.Vector(19.09, 6.5, 0), App.Vector(19.8, 6.5, 0)),  # 33
    Part.LineSegment(App.Vector(19.8, 6.5, 0), App.Vector(19.8, 6.9, 0)),  # 34
    Part.LineSegment(App.Vector(19.8, 6.9, 0), App.Vector(19.09, 6.9, 0)),  # 35
], False)
sketch18.addConstraint([
    Sketcher.Constraint("Coincident", 0, 2, 1, 1),
    Sketcher.Constraint("Coincident", 1, 2, 2, 1),
    Sketcher.Constraint("Coincident", 2, 2, 3, 1),
    Sketcher.Constraint("Coincident", 3, 2, 0, 1),
    Sketcher.Constraint("Coincident", 4, 2, 5, 1),
    Sketcher.Constraint("Coincident", 5, 2, 6, 1),
    Sketcher.Constraint("Coincident", 6, 2, 7, 1),
    Sketcher.Constraint("Coincident", 7, 2, 4, 1),
    Sketcher.Constraint("Coincident", 8, 2, 9, 1),
    Sketcher.Constraint("Coincident", 9, 2, 10, 1),
    Sketcher.Constraint("Coincident", 10, 2, 11, 1),
    Sketcher.Constraint("Coincident", 11, 2, 8, 1),
    Sketcher.Constraint("Coincident", 12, 2, 13, 1),
    Sketcher.Constraint("Coincident", 13, 2, 14, 1),
    Sketcher.Constraint("Coincident", 14, 2, 15, 1),
    Sketcher.Constraint("Coincident", 15, 2, 12, 1),
    Sketcher.Constraint("Coincident", 16, 2, 17, 1),
    Sketcher.Constraint("Coincident", 17, 2, 18, 1),
    Sketcher.Constraint("Coincident", 18, 2, 19, 1),
    Sketcher.Constraint("Coincident", 19, 2, 16, 1),
    Sketcher.Constraint("Coincident", 20, 2, 21, 1),
    Sketcher.Constraint("Coincident", 21, 2, 22, 1),
    Sketcher.Constraint("Coincident", 22, 2, 23, 1),
    Sketcher.Constraint("Coincident", 23, 2, 20, 1),
    Sketcher.Constraint("Coincident", 24, 2, 25, 1),
    Sketcher.Constraint("Coincident", 25, 2, 26, 1),
    Sketcher.Constraint("Coincident", 26, 2, 27, 1),
    Sketcher.Constraint("Coincident", 27, 2, 24, 1),
    Sketcher.Constraint("Coincident", 28, 2, 29, 1),
    Sketcher.Constraint("Coincident", 29, 2, 30, 1),
    Sketcher.Constraint("Coincident", 30, 2, 31, 1),
    Sketcher.Constraint("Coincident", 31, 2, 28, 1),
    Sketcher.Constraint("Coincident", 32, 2, 33, 1),
    Sketcher.Constraint("Coincident", 33, 2, 34, 1),
    Sketcher.Constraint("Coincident", 34, 2, 35, 1),
    Sketcher.Constraint("Coincident", 35, 2, 32, 1),
    Sketcher.Constraint("Vertical", 0),
    Sketcher.Constraint("Horizontal", 1),
    Sketcher.Constraint("Vertical", 2),
    Sketcher.Constraint("Horizontal", 3),
    Sketcher.Constraint("Vertical", 4),
    Sketcher.Constraint("Horizontal", 5),
    Sketcher.Constraint("Vertical", 6),
    Sketcher.Constraint("Horizontal", 7),
    Sketcher.Constraint("Vertical", 8),
    Sketcher.Constraint("Horizontal", 9),
    Sketcher.Constraint("Vertical", 10),
    Sketcher.Constraint("Horizontal", 11),
    Sketcher.Constraint("Vertical", 12),
    Sketcher.Constraint("Horizontal", 13),
    Sketcher.Constraint("Vertical", 14),
    Sketcher.Constraint("Horizontal", 15),
    Sketcher.Constraint("Vertical", 16),
    Sketcher.Constraint("Horizontal", 17),
    Sketcher.Constraint("Vertical", 18),
    Sketcher.Constraint("Horizontal", 19),
    Sketcher.Constraint("Vertical", 20),
    Sketcher.Constraint("Horizontal", 21),
    Sketcher.Constraint("Vertical", 22),
    Sketcher.Constraint("Horizontal", 23),
    Sketcher.Constraint("Vertical", 24),
    Sketcher.Constraint("Horizontal", 25),
    Sketcher.Constraint("Vertical", 26),
    Sketcher.Constraint("Horizontal", 27),
    Sketcher.Constraint("Vertical", 28),
    Sketcher.Constraint("Horizontal", 29),
    Sketcher.Constraint("Vertical", 30),
    Sketcher.Constraint("Horizontal", 31),
    Sketcher.Constraint("Vertical", 32),
    Sketcher.Constraint("Horizontal", 33),
    Sketcher.Constraint("Vertical", 34),
    Sketcher.Constraint("Horizontal", 35),
    Sketcher.Constraint("PointOnObject", 0, 2, -2),
    Sketcher.Constraint("Horizontal", 1, 2, 4, 2),
    Sketcher.Constraint("Horizontal", 3, 2, 6, 2),
    Sketcher.Constraint("Horizontal", 5, 2, 8, 2),
    Sketcher.Constraint("Horizontal", 7, 2, 10, 2),
    Sketcher.Constraint("Horizontal", 9, 2, 12, 2),
    Sketcher.Constraint("Horizontal", 11, 2, 14, 2),
    Sketcher.Constraint("Horizontal", 13, 2, 16, 2),
    Sketcher.Constraint("Horizontal", 15, 2, 18, 2),
    Sketcher.Constraint("Horizontal", 17, 2, 20, 2),
    Sketcher.Constraint("Horizontal", 19, 2, 22, 2),
    Sketcher.Constraint("Horizontal", 21, 2, 24, 2),
    Sketcher.Constraint("Horizontal", 23, 2, 26, 2),
    Sketcher.Constraint("Horizontal", 25, 2, 28, 2),
    Sketcher.Constraint("Horizontal", 27, 2, 30, 2),
    Sketcher.Constraint("Horizontal", 29, 2, 32, 2),
    Sketcher.Constraint("Horizontal", 31, 2, 34, 2),
    Sketcher.Constraint("Equal", 7, 9),
    Sketcher.Constraint("Equal", 11, 13),
    Sketcher.Constraint("Equal", 15, 17),
    Sketcher.Constraint("Equal", 19, 21),
    Sketcher.Constraint("Equal", 23, 25),
    Sketcher.Constraint("Equal", 27, 29),
    Sketcher.Constraint("Equal", 3, 33),
    Sketcher.Constraint("DistanceY", 0, 2, 0, 1, Q("0.4 mm")),
    Sketcher.Constraint("DistanceX", 1, 1, 1, 2, Q("0.71 mm")),
    Sketcher.Constraint("DistanceX", 5, 1, 5, 2, Q("1.94 mm")),
    Sketcher.Constraint("DistanceY", -1, 1, 0, 2, Q("6.5 mm")),
    Sketcher.Constraint("DistanceX", -1, 1, 33, 2, Q("19.8 mm")),
    Sketcher.Constraint("DistanceX", 1, 2, 4, 2, Q("0.6 mm")),
    Sketcher.Constraint("DistanceX", 5, 2, 8, 2, Q("0.6 mm")),
    Sketcher.Constraint("DistanceX", 9, 2, 16, 2, Q("0.6 mm")),
    Sketcher.Constraint("DistanceX", 17, 2, 12, 2, Q("0.6 mm")),
    Sketcher.Constraint("DistanceX", 13, 2, 20, 2, Q("0.6 mm")),
    Sketcher.Constraint("DistanceX", 21, 2, 24, 2, Q("0.6 mm")),
    Sketcher.Constraint("DistanceX", 25, 2, 28, 2, Q("0.6 mm")),
])
pocket1 = doc.addObject("PartDesign::Pocket", "Pocket")
body.addObject(pocket1)
pocket1.Profile = sketch18
pocket1.Type = "ThroughAll"

# Sketch on YZ plane
sketch19 = doc.addObject("Sketcher::SketchObject", "Sketch018")
body.addObject(sketch19)
sketch19.AttachmentSupport = (doc.YZ_Plane, [""])
sketch19.MapMode = "FlatFace"
sketch19.AttachmentOffset = App.Placement(App.Vector(0, 0, 19.8), App.Rotation())
sketch19.addGeometry([
    Part.LineSegment(App.Vector(10, 6.9, 0), App.Vector(6.1, 6.9, 0)),  # 0
    Part.LineSegment(App.Vector(6.1, 6.9, 0), App.Vector(6.1, 6.5, 0)),  # 1
    Part.LineSegment(App.Vector(6.1, 6.5, 0), App.Vector(10, 6.5, 0)),  # 2
    Part.LineSegment(App.Vector(10, 6.5, 0), App.Vector(10, 6.9, 0)),  # 3
    Part.LineSegment(App.Vector(5.23, 6.9, 0), App.Vector(0, 6.9, 0)),  # 4
    Part.LineSegment(App.Vector(0, 6.9, 0), App.Vector(0, 6.5, 0)),  # 5
    Part.LineSegment(App.Vector(0, 6.5, 0), App.Vector(5.23, 6.5, 0)),  # 6
    Part.LineSegment(App.Vector(5.23, 6.5, 0), App.Vector(5.23, 6.9, 0)),  # 7
], False)
sketch19.addConstraint([
    Sketcher.Constraint("Coincident", 0, 2, 1, 1),
    Sketcher.Constraint("Coincident", 1, 2, 2, 1),
    Sketcher.Constraint("Coincident", 2, 2, 3, 1),
    Sketcher.Constraint("Coincident", 3, 2, 0, 1),
    Sketcher.Constraint("Coincident", 4, 2, 5, 1),
    Sketcher.Constraint("Coincident", 5, 2, 6, 1),
    Sketcher.Constraint("Coincident", 6, 2, 7, 1),
    Sketcher.Constraint("Coincident", 7, 2, 4, 1),
    Sketcher.Constraint("Horizontal", 0),
    Sketcher.Constraint("Vertical", 1),
    Sketcher.Constraint("Horizontal", 2),
    Sketcher.Constraint("Vertical", 3),
    Sketcher.Constraint("Horizontal", 4),
    Sketcher.Constraint("Vertical", 5),
    Sketcher.Constraint("Horizontal", 6),
    Sketcher.Constraint("Vertical", 7),
    Sketcher.Constraint("PointOnObject", 4, 2, -2),
    Sketcher.Constraint("Horizontal", 3, 2, 4, 2),
    Sketcher.Constraint("Horizontal", 2, 2, 5, 2),
    Sketcher.Constraint("DistanceY", 1, 2, 1, 1, Q("0.4 mm")),
    Sketcher.Constraint("DistanceX", -1, 1, 2, 2, Q("10 mm")),
    Sketcher.Constraint("DistanceY", -1, 1, 0, 2, Q("6.9 mm")),
    Sketcher.Constraint("DistanceX", 0, 2, 0, 1, Q("3.904109 mm")),
    Sketcher.Constraint("DistanceX", 4, 2, 4, 1, Q("5.232388 mm")),
])
pocket2 = doc.addObject("PartDesign::Pocket", "Pocket001")
body.addObject(pocket2)
pocket2.Profile = sketch19
pocket2.Type = "ThroughAll"

doc.recompute()
